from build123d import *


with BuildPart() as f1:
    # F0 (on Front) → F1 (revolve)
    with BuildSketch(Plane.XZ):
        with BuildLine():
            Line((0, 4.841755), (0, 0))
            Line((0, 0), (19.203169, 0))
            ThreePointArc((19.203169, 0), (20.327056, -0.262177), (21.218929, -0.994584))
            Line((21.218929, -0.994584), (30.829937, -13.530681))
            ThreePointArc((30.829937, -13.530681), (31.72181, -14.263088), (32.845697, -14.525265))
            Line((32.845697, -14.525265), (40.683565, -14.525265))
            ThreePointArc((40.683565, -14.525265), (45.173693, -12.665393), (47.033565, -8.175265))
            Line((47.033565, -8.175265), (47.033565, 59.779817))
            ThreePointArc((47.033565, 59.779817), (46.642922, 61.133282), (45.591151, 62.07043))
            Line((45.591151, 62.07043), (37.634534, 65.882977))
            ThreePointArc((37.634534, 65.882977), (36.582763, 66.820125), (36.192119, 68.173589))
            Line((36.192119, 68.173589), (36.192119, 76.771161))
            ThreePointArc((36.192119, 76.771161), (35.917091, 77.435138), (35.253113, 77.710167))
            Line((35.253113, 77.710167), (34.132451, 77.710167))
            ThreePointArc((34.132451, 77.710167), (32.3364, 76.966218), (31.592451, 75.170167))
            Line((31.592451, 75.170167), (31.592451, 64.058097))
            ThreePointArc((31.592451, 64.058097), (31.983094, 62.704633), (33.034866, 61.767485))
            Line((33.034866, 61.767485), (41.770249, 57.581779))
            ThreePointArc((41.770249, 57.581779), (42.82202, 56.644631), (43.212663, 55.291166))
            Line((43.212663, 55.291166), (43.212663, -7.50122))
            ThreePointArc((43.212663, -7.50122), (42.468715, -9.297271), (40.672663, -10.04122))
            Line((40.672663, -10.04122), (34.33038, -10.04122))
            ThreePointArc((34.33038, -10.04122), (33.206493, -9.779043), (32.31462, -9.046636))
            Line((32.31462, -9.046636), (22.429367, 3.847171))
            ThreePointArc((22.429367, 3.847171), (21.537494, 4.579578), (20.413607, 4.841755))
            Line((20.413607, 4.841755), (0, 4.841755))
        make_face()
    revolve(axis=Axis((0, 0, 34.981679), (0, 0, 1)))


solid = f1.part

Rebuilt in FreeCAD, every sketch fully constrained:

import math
import FreeCAD as App
import Part
import Sketcher
from FreeCAD import Vector
Q = App.Units.Quantity

doc = App.newDocument("Part")
body = doc.addObject("PartDesign::Body", "Body")

# Sketch on XZ plane
sketch1 = body.newObject("Sketcher::SketchObject", "Sketch")
sketch1.AttachmentSupport = (doc.getObject("XZ_Plane"), [""])
sketch1.MapMode = "FlatFace"
sketch1.addGeometry(Part.LineSegment(Vector(0, 4.841755, 0), Vector(0, 0, 0)), False)
sketch1.addGeometry(Part.LineSegment(Vector(0, 0, 0), Vector(19.203169, 0, 0)), False)
sketch1.addGeometry(Part.ArcOfCircle(Part.Circle(Vector(19.203169, -2.54, 0), Vector(0, 0, 1), 2.54), math.radians(37.476173), math.radians(89.999998)), False)
sketch1.addGeometry(Part.LineSegment(Vector(21.218929, -0.994584, 0), Vector(30.829937, -13.530681, 0)), False)
sketch1.addGeometry(Part.ArcOfCircle(Part.Circle(Vector(32.845697, -11.985265, 0), Vector(0, 0, 1), 2.54), math.radians(-142.523827), math.radians(-90.000002)), False)
sketch1.addGeometry(Part.LineSegment(Vector(32.845697, -14.525265, 0), Vector(40.683565, -14.525265, 0)), False)
sketch1.addGeometry(Part.ArcOfCircle(Part.Circle(Vector(40.683565, -8.175265, 0), Vector(0, 0, 1), 6.35), math.radians(-89.999998), math.radians(-0.000002)), False)
sketch1.addGeometry(Part.LineSegment(Vector(47.033565, -8.175265, 0), Vector(47.033565, 59.779817, 0)), False)
sketch1.addGeometry(Part.ArcOfCircle(Part.Circle(Vector(44.493566, 59.779819, 0), Vector(0, 0, 1), 2.539999), math.radians(-0.000034), math.radians(64.397814)), False)
sketch1.addGeometry(Part.LineSegment(Vector(45.591151, 62.07043, 0), Vector(37.634534, 65.882977, 0)), False)
sketch1.addGeometry(Part.ArcOfCircle(Part.Circle(Vector(38.732121, 68.173591, 0), Vector(0, 0, 1), 2.540002), math.radians(-179.999955), math.radians(-115.602208)), False)
sketch1.addGeometry(Part.LineSegment(Vector(36.192119, 68.173589, 0), Vector(36.192119, 76.771161, 0)), False)
sketch1.addGeometry(Part.ArcOfCircle(Part.Circle(Vector(35.253113, 76.771161, 0), Vector(0, 0, 1), 0.939006), math.radians(0.000002), math.radians(89.999998)), False)
sketch1.addGeometry(Part.LineSegment(Vector(35.253113, 77.710167, 0), Vector(34.132451, 77.710167, 0)), False)
sketch1.addGeometry(Part.ArcOfCircle(Part.Circle(Vector(34.132452, 75.170166, 0), Vector(0, 0, 1), 2.540001), math.radians(90.000017), math.radians(179.999983)), False)
sketch1.addGeometry(Part.LineSegment(Vector(31.592451, 75.170167, 0), Vector(31.592451, 64.058097, 0)), False)
sketch1.addGeometry(Part.ArcOfCircle(Part.Circle(Vector(34.132448, 64.058096, 0), Vector(0, 0, 1), 2.539997), math.radians(179.999979), math.radians(244.397859)), False)
sketch1.addGeometry(Part.LineSegment(Vector(33.034866, 61.767485, 0), Vector(41.770249, 57.581779, 0)), False)
sketch1.addGeometry(Part.ArcOfCircle(Part.Circle(Vector(40.672664, 55.291168, 0), Vector(0, 0, 1), 2.539999), math.radians(-0.000034), math.radians(64.397814)), False)
sketch1.addGeometry(Part.LineSegment(Vector(43.212663, 55.291166, 0), Vector(43.212663, -7.50122, 0)), False)
sketch1.addGeometry(Part.ArcOfCircle(Part.Circle(Vector(40.672664, -7.501221, 0), Vector(0, 0, 1), 2.539999), math.radians(-90.000021), math.radians(0.000021)), False)
sketch1.addGeometry(Part.LineSegment(Vector(40.672663, -10.04122, 0), Vector(34.33038, -10.04122, 0)), False)
sketch1.addGeometry(Part.ArcOfCircle(Part.Circle(Vector(34.33038, -7.50122, 0), Vector(0, 0, 1), 2.54), math.radians(-142.523827), math.radians(-90.000002)), False)
sketch1.addGeometry(Part.LineSegment(Vector(32.31462, -9.046636, 0), Vector(22.429367, 3.847171, 0)), False)
sketch1.addGeometry(Part.ArcOfCircle(Part.Circle(Vector(20.413607, 2.301755, 0), Vector(0, 0, 1), 2.54), math.radians(37.476173), math.radians(89.999998)), False)
sketch1.addGeometry(Part.LineSegment(Vector(20.413607, 4.841755, 0), Vector(0, 4.841755, 0)), False)
sketch1.addConstraint(Sketcher.Constraint("Coincident", 0, 2, 1, 1))
sketch1.addConstraint(Sketcher.Constraint("Coincident", 1, 2, 2, 2))
sketch1.addConstraint(Sketcher.Constraint("Coincident", 2, 1, 3, 1))
sketch1.addConstraint(Sketcher.Constraint("Coincident", 3, 2, 4, 1))
sketch1.addConstraint(Sketcher.Constraint("Coincident", 4, 2, 5, 1))
sketch1.addConstraint(Sketcher.Constraint("Coincident", 5, 2, 6, 1))
sketch1.addConstraint(Sketcher.Constraint("Coincident", 6, 2, 7, 1))
sketch1.addConstraint(Sketcher.Constraint("Coincident", 7, 2, 8, 1))
sketch1.addConstraint(Sketcher.Constraint("Coincident", 8, 2, 9, 1))
sketch1.addConstraint(Sketcher.Constraint("Coincident", 9, 2, 10, 2))
sketch1.addConstraint(Sketcher.Constraint("Coincident", 10, 1, 11, 1))
sketch1.addConstraint(Sketcher.Constraint("Coincident", 11, 2, 12, 1))
sketch1.addConstraint(Sketcher.Constraint("Coincident", 12, 2, 13, 1))
sketch1.addConstraint(Sketcher.Constraint("Coincident", 13, 2, 14, 1))
sketch1.addConstraint(Sketcher.Constraint("Coincident", 14, 2, 15, 1))
sketch1.addConstraint(Sketcher.Constraint("Coincident", 15, 2, 16, 1))
sketch1.addConstraint(Sketcher.Constraint("Coincident", 16, 2, 17, 1))
sketch1.addConstraint(Sketcher.Constraint("Coincident", 17, 2, 18, 2))
sketch1.addConstraint(Sketcher.Constraint("Coincident", 18, 1, 19, 1))
sketch1.addConstraint(Sketcher.Constraint("Coincident", 19, 2, 20, 2))
sketch1.addConstraint(Sketcher.Constraint("Coincident", 20, 1, 21, 1))
sketch1.addConstraint(Sketcher.Constraint("Coincident", 21, 2, 22, 2))
sketch1.addConstraint(Sketcher.Constraint("Coincident", 22, 1, 23, 1))
sketch1.addConstraint(Sketcher.Constraint("Coincident", 23, 2, 24, 1))
sketch1.addConstraint(Sketcher.Constraint("Coincident", 24, 2, 25, 1))
sketch1.addConstraint(Sketcher.Constraint("Coincident", 25, 2, 0, 1))
sketch1.addConstraint(Sketcher.Constraint("Vertical", 0))
sketch1.addConstraint(Sketcher.Constraint("Horizontal", 1))
sketch1.addConstraint(Sketcher.Constraint("Horizontal", 5))
sketch1.addConstraint(Sketcher.Constraint("Vertical", 7))
sketch1.addConstraint(Sketcher.Constraint("Vertical", 11))
sketch1.addConstraint(Sketcher.Constraint("Horizontal", 13))
sketch1.addConstraint(Sketcher.Constraint("Vertical", 15))
sketch1.addConstraint(Sketcher.Constraint("Vertical", 19))
sketch1.addConstraint(Sketcher.Constraint("Horizontal", 21))
sketch1.addConstraint(Sketcher.Constraint("Horizontal", 25))
sketch1.addConstraint(Sketcher.Constraint("Coincident", 0, 2, -1, 1))
sketch1.addConstraint(Sketcher.Constraint("Radius", 2, Q("0.1 in")))
sketch1.addConstraint(Sketcher.Constraint("Radius", 4, Q("0.1 in")))
sketch1.addConstraint(Sketcher.Constraint("Radius", 8, Q("0.0999999 in")))
sketch1.addConstraint(Sketcher.Constraint("Radius", 10, Q("0.1000001 in")))
sketch1.addConstraint(Sketcher.Constraint("Radius", 14, Q("0.1 in")))
sketch1.addConstraint(Sketcher.Constraint("Radius", 16, Q("0.0999999 in")))
sketch1.addConstraint(Sketcher.Constraint("Radius", 18, Q("0.0999999 in")))
sketch1.addConstraint(Sketcher.Constraint("Radius", 20, Q("0.1 in")))
sketch1.addConstraint(Sketcher.Constraint("Radius", 22, Q("0.1 in")))
sketch1.addConstraint(Sketcher.Constraint("Radius", 24, Q("0.1 in")))
sketch1.addConstraint(Sketcher.Constraint("Radius", 6, Q("0.25 in")))
sketch1.addConstraint(Sketcher.Constraint("DistanceX", 14, 2, 13, 2, Q("0.1 in")))
sketch1.addConstraint(Sketcher.Constraint("DistanceY", 14, 2, 13, 2, Q("0.1 in")))
sketch1.addConstraint(Sketcher.Constraint("DistanceX", 20, 1, 19, 2, Q("0.1 in")))
sketch1.addConstraint(Sketcher.Constraint("DistanceY", 20, 1, 19, 2, Q("0.1 in")))
sketch1.addConstraint(Sketcher.Constraint("DistanceX", 5, 2, 6, 2, Q("0.25 in")))
sketch1.addConstraint(Sketcher.Constraint("DistanceY", 5, 2, 6, 2, Q("0.25 in")))
sketch1.addConstraint(Sketcher.Constraint("Radius", 12, Q("0.939006 mm")))
sketch1.addConstraint(Sketcher.Constraint("DistanceY", 18, 3, 8, 2, Q("0.2669001 in")))
sketch1.addConstraint(Sketcher.Constraint("DistanceY", 18, 1, 8, 2, Q("0.2669002 in")))
sketch1.addConstraint(Sketcher.Constraint("DistanceX", 1, 1, 1, 2, Q("19.203169 mm")))
sketch1.addConstraint(Sketcher.Constraint("DistanceX", 5, 1, 5, 2, Q("7.837868 mm")))
sketch1.addConstraint(Sketcher.Constraint("DistanceX", 13, 2, 13, 1, Q("1.120662 mm")))
sketch1.addConstraint(Sketcher.Constraint("DistanceY", 15, 2, 15, 1, Q("11.11207 mm")))
sketch1.addConstraint(Sketcher.Constraint("DistanceY", 18, 3, 14, 3, Q("19.878999 mm")))
sketch1.addConstraint(Sketcher.Constraint("DistanceX", 20, 3, 6, 3, Q("0.010901 mm")))
sketch1.addConstraint(Sketcher.Constraint("DistanceX", 1, 2, 23, 2, Q("3.226198 mm")))
sketch1.addConstraint(Sketcher.Constraint("DistanceX", 2, 3, 23, 2, Q("3.226198 mm")))
sketch1.addConstraint(Sketcher.Constraint("DistanceX", 21, 2, 21, 1, Q("6.342283 mm")))
sketch1.addConstraint(Sketcher.Constraint("DistanceX", 25, 2, 25, 1, Q("20.413607 mm")))
sketch1.addConstraint(Sketcher.Constraint("DistanceY", 0, 2, 0, 1, Q("4.841755 mm")))
sketch1.addConstraint(Sketcher.Constraint("DistanceY", 7, 1, 7, 2, Q("67.955082 mm")))
sketch1.addConstraint(Sketcher.Constraint("DistanceY", 11, 1, 11, 2, Q("8.597572 mm")))
sketch1.addConstraint(Sketcher.Constraint("DistanceY", 19, 2, 19, 1, Q("62.792386 mm")))
sketch1.addConstraint(Sketcher.Constraint("DistanceY", -1, 1, 8, 3, Q("59.779819 mm")))
sketch1.addConstraint(Sketcher.Constraint("DistanceX", -1, 1, 10, 3, Q("38.732121 mm")))
sketch1.addConstraint(Sketcher.Constraint("DistanceY", -1, 1, 10, 3, Q("68.173591 mm")))
sketch1.addConstraint(Sketcher.Constraint("DistanceY", -1, 1, 12, 3, Q("76.771161 mm")))
sketch1.addConstraint(Sketcher.Constraint("DistanceX", -1, 1, 14, 3, Q("34.132452 mm")))
sketch1.addConstraint(Sketcher.Constraint("DistanceX", -1, 1, 22, 3, Q("34.33038 mm")))
sketch1.addConstraint(Sketcher.Constraint("DistanceX", -1, 1, 2, 1, Q("21.218929 mm")))
sketch1.addConstraint(Sketcher.Constraint("DistanceY", 3, 2, -1, 1, Q("13.530681 mm")))
sketch1.addConstraint(Sketcher.Constraint("DistanceX", -1, 1, 8, 2, Q("45.591151 mm")))
sketch1.addConstraint(Sketcher.Constraint("DistanceY", -1, 1, 10, 1, Q("68.173589 mm")))
sketch1.addConstraint(Sketcher.Constraint("DistanceX", -1, 1, 17, 2, Q("41.770249 mm")))
sketch1.addConstraint(Sketcher.Constraint("DistanceX", -1, 1, 22, 1, Q("32.31462 mm")))
sketch1.addConstraint(Sketcher.Constraint("DistanceY", -1, 1, 23, 2, Q("3.847171 mm")))
sketch1.addConstraint(Sketcher.Constraint("DistanceX", 2, 3, 4, 3, Q("13.642528 mm")))
sketch1.addConstraint(Sketcher.Constraint("DistanceY", 6, 3, 14, 3, Q("83.345431 mm")))
sketch1.addConstraint(Sketcher.Constraint("DistanceY", 16, 3, 14, 3, Q("11.11207 mm")))
sketch1.addConstraint(Sketcher.Constraint("DistanceY", 16, 3, 9, 2, Q("1.824881 mm")))
sketch1.addConstraint(Sketcher.Constraint("DistanceY", 16, 2, 16, 3, Q("2.290611 mm")))
revolution = body.newObject("PartDesign::Revolution", "Revolution")
revolution.Profile = sketch1
revolution.ReferenceAxis = (sketch1, ["V_Axis"])
revolution.Angle = 360

doc.recompute()
